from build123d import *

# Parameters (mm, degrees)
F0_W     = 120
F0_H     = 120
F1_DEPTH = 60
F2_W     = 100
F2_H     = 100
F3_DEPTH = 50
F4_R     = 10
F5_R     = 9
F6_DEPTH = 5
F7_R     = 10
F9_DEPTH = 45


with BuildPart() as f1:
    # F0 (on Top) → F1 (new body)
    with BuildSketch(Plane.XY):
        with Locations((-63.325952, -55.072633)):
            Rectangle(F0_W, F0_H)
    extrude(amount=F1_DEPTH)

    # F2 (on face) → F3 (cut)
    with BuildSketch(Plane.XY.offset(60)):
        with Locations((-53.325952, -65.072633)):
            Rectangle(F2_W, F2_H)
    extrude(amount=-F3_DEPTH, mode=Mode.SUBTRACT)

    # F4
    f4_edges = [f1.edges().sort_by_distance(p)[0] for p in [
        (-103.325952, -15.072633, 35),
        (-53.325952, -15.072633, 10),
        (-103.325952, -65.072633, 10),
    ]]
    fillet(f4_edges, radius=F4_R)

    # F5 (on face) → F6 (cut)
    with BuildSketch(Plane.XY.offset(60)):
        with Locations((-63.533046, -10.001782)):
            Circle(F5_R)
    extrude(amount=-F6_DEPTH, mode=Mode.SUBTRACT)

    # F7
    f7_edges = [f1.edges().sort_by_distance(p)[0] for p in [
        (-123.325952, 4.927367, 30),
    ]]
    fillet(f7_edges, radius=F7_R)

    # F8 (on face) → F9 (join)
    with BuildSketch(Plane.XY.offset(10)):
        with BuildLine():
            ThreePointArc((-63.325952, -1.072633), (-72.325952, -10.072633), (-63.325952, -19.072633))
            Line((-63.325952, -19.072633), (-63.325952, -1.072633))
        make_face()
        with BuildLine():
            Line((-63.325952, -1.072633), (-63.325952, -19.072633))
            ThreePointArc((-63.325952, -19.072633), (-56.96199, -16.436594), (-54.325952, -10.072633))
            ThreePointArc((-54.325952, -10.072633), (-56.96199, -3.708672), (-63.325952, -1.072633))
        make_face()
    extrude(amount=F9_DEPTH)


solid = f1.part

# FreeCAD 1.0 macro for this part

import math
import FreeCAD as App
import Part
import Sketcher
from FreeCAD import Vector


def edges_at(feature, points):
    """Names of the edges that pass closest to the given points."""
    edges = feature.Shape.Edges
    near = lambda p: min(range(len(edges)), key=lambda i: edges[i].distToShape(Part.Vertex(*p))[0])
    return sorted({f"Edge{near(p) + 1}" for p in points})

doc = App.newDocument("Part")
body = doc.addObject("PartDesign::Body", "Body")

# Sketch on XY plane
sketch1 = body.newObject("Sketcher::SketchObject", "Sketch")
sketch1.AttachmentSupport = (doc.getObject("XY_Plane"), [""])
sketch1.MapMode = "FlatFace"
sketch1.addGeometry([
    Part.LineSegment(Vector(-123.325952, 4.927367, 0), Vector(-123.325952, -115.072633, 0)),
    Part.LineSegment(Vector(-123.325952, -115.072633, 0), Vector(-3.325952, -115.072633, 0)),
    Part.LineSegment(Vector(-3.325952, -115.072633, 0), Vector(-3.325952, 4.927367, 0)),
    Part.LineSegment(Vector(-3.325952, 4.927367, 0), Vector(-123.325952, 4.927367, 0)),
], False)
sketch1.addConstraint([
    Sketcher.Constraint("Coincident", 0, 2, 1, 1),
    Sketcher.Constraint("Coincident", 1, 2, 2, 1),
    Sketcher.Constraint("Coincident", 2, 2, 3, 1),
    Sketcher.Constraint("Coincident", 3, 2, 0, 1),
    Sketcher.Constraint("Vertical", 0),
    Sketcher.Constraint("Horizontal", 1),
    Sketcher.Constraint("Vertical", 2),
    Sketcher.Constraint("Horizontal", 3),
    Sketcher.Constraint("Equal", 3, 0),
    Sketcher.Constraint("DistanceX", 1, 1, 1, 2, 120.0),
    Sketcher.Constraint("DistanceX", 0, 2, -1, 1, 123.325952),
    Sketcher.Constraint("DistanceY", 0, 2, -1, 1, 115.072633),
])
pad1 = body.newObject("PartDesign::Pad", "Pad")
pad1.Profile = sketch1
pad1.Length = 60

# Sketch on XY plane
sketch2 = body.newObject("Sketcher::SketchObject", "Sketch001")
sketch2.AttachmentSupport = (doc.getObject("XY_Plane"), [""])
sketch2.MapMode = "FlatFace"
sketch2.AttachmentOffset = App.Placement(Vector(0, 0, 60), App.Rotation())
sketch2.addGeometry([
    Part.LineSegment(Vector(-103.325952, -15.072633, 0), Vector(-103.325952, -115.072633, 0)),
    Part.LineSegment(Vector(-103.325952, -115.072633, 0), Vector(-3.325952, -115.072633, 0)),
    Part.LineSegment(Vector(-3.325952, -115.072633, 0), Vector(-3.325952, -15.072633, 0)),
    Part.LineSegment(Vector(-3.325952, -15.072633, 0), Vector(-103.325952, -15.072633, 0)),
], False)
sketch2.addConstraint([
    Sketcher.Constraint("Coincident", 0, 2, 1, 1),
    Sketcher.Constraint("Coincident", 1, 2, 2, 1),
    Sketcher.Constraint("Coincident", 2, 2, 3, 1),
    Sketcher.Constraint("Coincident", 3, 2, 0, 1),
    Sketcher.Constraint("Vertical", 0),
    Sketcher.Constraint("Horizontal", 1),
    Sketcher.Constraint("Vertical", 2),
    Sketcher.Constraint("Horizontal", 3),
    Sketcher.Constraint("Equal", 3, 0),
    Sketcher.Constraint("DistanceX", 1, 1, 1, 2, 100.0),
    Sketcher.Constraint("DistanceX", 0, 2, -1, 1, 103.325952),
    Sketcher.Constraint("DistanceY", 0, 2, -1, 1, 115.072633),
])
pocket1 = body.newObject("PartDesign::Pocket", "Pocket")
pocket1.Profile = sketch2
pocket1.Length = 50
doc.recompute()

fillet = body.newObject("PartDesign::Fillet", "Fillet")
fillet.Base = (pocket1, edges_at(pocket1, [(-103.326, -15.073, 35), (-53.326, -15.073, 10), (-103.326, -65.073, 10)]))
fillet.Radius = 10

# Sketch on XY plane
sketch3 = body.newObject("Sketcher::SketchObject", "Sketch002")
sketch3.AttachmentSupport = (doc.getObject("XY_Plane"), [""])
sketch3.MapMode = "FlatFace"
sketch3.AttachmentOffset = App.Placement(Vector(0, 0, 60), App.Rotation())
sketch3.addGeometry(Part.Circle(Vector(-63.533046, -10.001782, 0), Vector(0, 0, 1), 9), False)
sketch3.addConstraint([
    Sketcher.Constraint("Diameter", 0, 18.0),
    Sketcher.Constraint("DistanceX", 0, 3, -1, 1, 63.533046),
    Sketcher.Constraint("DistanceY", 0, 3, -1, 1, 10.001782),
])
pocket2 = body.newObject("PartDesign::Pocket", "Pocket001")
pocket2.Profile = sketch3
pocket2.Length = 5
doc.recompute()

fillet2 = body.newObject("PartDesign::Fillet", "Fillet001")
fillet2.Base = (pocket2, edges_at(pocket2, [(-123.326, 4.927, 30)]))
fillet2.Radius = 10

# Sketch on XY plane
sketch4 = body.newObject("Sketcher::SketchObject", "Sketch003")
sketch4.AttachmentSupport = (doc.getObject("XY_Plane"), [""])
sketch4.MapMode = "FlatFace"
sketch4.AttachmentOffset = App.Placement(Vector(0, 0, 10), App.Rotation())
sketch4.addGeometry([
    Part.ArcOfCircle(Part.Circle(Vector(-63.325952, -10.072633, 0), Vector(0, 0, 1), 9), math.radians(90), math.radians(270)),
    Part.ArcOfCircle(Part.Circle(Vector(-63.32595, -10.072635, 0), Vector(0, 0, 1), 8.999998), math.radians(-90.00001), math.radians(0.00001)),
    Part.ArcOfCircle(Part.Circle(Vector(-63.32595, -10.072631, 0), Vector(0, 0, 1), 8.999998), math.radians(-0.00001), math.radians(90.00001)),
], False)
sketch4.addConstraint([
    Sketcher.Constraint("Tangent", 0, 2, 1, 1),
    Sketcher.Constraint("Tangent", 1, 2, 2, 1),
    Sketcher.Constraint("Tangent", 2, 2, 0, 1),
    Sketcher.Constraint("Horizontal", 2, 3, 1, 2),
    Sketcher.Constraint("Vertical", 2, 3, 0, 2),
    Sketcher.Constraint("Vertical", 0, 2, 2, 2),
    Sketcher.Constraint("Radius", 0, 9.0),
    Sketcher.Constraint("DistanceX", 1, 3, -1, 1, 63.32595),
    Sketcher.Constraint("DistanceY", 2, 3, -1, 1, 10.072631),
])
pad2 = body.newObject("PartDesign::Pad", "Pad001")
pad2.Profile = sketch4
pad2.Length = 45

doc.recompute()
